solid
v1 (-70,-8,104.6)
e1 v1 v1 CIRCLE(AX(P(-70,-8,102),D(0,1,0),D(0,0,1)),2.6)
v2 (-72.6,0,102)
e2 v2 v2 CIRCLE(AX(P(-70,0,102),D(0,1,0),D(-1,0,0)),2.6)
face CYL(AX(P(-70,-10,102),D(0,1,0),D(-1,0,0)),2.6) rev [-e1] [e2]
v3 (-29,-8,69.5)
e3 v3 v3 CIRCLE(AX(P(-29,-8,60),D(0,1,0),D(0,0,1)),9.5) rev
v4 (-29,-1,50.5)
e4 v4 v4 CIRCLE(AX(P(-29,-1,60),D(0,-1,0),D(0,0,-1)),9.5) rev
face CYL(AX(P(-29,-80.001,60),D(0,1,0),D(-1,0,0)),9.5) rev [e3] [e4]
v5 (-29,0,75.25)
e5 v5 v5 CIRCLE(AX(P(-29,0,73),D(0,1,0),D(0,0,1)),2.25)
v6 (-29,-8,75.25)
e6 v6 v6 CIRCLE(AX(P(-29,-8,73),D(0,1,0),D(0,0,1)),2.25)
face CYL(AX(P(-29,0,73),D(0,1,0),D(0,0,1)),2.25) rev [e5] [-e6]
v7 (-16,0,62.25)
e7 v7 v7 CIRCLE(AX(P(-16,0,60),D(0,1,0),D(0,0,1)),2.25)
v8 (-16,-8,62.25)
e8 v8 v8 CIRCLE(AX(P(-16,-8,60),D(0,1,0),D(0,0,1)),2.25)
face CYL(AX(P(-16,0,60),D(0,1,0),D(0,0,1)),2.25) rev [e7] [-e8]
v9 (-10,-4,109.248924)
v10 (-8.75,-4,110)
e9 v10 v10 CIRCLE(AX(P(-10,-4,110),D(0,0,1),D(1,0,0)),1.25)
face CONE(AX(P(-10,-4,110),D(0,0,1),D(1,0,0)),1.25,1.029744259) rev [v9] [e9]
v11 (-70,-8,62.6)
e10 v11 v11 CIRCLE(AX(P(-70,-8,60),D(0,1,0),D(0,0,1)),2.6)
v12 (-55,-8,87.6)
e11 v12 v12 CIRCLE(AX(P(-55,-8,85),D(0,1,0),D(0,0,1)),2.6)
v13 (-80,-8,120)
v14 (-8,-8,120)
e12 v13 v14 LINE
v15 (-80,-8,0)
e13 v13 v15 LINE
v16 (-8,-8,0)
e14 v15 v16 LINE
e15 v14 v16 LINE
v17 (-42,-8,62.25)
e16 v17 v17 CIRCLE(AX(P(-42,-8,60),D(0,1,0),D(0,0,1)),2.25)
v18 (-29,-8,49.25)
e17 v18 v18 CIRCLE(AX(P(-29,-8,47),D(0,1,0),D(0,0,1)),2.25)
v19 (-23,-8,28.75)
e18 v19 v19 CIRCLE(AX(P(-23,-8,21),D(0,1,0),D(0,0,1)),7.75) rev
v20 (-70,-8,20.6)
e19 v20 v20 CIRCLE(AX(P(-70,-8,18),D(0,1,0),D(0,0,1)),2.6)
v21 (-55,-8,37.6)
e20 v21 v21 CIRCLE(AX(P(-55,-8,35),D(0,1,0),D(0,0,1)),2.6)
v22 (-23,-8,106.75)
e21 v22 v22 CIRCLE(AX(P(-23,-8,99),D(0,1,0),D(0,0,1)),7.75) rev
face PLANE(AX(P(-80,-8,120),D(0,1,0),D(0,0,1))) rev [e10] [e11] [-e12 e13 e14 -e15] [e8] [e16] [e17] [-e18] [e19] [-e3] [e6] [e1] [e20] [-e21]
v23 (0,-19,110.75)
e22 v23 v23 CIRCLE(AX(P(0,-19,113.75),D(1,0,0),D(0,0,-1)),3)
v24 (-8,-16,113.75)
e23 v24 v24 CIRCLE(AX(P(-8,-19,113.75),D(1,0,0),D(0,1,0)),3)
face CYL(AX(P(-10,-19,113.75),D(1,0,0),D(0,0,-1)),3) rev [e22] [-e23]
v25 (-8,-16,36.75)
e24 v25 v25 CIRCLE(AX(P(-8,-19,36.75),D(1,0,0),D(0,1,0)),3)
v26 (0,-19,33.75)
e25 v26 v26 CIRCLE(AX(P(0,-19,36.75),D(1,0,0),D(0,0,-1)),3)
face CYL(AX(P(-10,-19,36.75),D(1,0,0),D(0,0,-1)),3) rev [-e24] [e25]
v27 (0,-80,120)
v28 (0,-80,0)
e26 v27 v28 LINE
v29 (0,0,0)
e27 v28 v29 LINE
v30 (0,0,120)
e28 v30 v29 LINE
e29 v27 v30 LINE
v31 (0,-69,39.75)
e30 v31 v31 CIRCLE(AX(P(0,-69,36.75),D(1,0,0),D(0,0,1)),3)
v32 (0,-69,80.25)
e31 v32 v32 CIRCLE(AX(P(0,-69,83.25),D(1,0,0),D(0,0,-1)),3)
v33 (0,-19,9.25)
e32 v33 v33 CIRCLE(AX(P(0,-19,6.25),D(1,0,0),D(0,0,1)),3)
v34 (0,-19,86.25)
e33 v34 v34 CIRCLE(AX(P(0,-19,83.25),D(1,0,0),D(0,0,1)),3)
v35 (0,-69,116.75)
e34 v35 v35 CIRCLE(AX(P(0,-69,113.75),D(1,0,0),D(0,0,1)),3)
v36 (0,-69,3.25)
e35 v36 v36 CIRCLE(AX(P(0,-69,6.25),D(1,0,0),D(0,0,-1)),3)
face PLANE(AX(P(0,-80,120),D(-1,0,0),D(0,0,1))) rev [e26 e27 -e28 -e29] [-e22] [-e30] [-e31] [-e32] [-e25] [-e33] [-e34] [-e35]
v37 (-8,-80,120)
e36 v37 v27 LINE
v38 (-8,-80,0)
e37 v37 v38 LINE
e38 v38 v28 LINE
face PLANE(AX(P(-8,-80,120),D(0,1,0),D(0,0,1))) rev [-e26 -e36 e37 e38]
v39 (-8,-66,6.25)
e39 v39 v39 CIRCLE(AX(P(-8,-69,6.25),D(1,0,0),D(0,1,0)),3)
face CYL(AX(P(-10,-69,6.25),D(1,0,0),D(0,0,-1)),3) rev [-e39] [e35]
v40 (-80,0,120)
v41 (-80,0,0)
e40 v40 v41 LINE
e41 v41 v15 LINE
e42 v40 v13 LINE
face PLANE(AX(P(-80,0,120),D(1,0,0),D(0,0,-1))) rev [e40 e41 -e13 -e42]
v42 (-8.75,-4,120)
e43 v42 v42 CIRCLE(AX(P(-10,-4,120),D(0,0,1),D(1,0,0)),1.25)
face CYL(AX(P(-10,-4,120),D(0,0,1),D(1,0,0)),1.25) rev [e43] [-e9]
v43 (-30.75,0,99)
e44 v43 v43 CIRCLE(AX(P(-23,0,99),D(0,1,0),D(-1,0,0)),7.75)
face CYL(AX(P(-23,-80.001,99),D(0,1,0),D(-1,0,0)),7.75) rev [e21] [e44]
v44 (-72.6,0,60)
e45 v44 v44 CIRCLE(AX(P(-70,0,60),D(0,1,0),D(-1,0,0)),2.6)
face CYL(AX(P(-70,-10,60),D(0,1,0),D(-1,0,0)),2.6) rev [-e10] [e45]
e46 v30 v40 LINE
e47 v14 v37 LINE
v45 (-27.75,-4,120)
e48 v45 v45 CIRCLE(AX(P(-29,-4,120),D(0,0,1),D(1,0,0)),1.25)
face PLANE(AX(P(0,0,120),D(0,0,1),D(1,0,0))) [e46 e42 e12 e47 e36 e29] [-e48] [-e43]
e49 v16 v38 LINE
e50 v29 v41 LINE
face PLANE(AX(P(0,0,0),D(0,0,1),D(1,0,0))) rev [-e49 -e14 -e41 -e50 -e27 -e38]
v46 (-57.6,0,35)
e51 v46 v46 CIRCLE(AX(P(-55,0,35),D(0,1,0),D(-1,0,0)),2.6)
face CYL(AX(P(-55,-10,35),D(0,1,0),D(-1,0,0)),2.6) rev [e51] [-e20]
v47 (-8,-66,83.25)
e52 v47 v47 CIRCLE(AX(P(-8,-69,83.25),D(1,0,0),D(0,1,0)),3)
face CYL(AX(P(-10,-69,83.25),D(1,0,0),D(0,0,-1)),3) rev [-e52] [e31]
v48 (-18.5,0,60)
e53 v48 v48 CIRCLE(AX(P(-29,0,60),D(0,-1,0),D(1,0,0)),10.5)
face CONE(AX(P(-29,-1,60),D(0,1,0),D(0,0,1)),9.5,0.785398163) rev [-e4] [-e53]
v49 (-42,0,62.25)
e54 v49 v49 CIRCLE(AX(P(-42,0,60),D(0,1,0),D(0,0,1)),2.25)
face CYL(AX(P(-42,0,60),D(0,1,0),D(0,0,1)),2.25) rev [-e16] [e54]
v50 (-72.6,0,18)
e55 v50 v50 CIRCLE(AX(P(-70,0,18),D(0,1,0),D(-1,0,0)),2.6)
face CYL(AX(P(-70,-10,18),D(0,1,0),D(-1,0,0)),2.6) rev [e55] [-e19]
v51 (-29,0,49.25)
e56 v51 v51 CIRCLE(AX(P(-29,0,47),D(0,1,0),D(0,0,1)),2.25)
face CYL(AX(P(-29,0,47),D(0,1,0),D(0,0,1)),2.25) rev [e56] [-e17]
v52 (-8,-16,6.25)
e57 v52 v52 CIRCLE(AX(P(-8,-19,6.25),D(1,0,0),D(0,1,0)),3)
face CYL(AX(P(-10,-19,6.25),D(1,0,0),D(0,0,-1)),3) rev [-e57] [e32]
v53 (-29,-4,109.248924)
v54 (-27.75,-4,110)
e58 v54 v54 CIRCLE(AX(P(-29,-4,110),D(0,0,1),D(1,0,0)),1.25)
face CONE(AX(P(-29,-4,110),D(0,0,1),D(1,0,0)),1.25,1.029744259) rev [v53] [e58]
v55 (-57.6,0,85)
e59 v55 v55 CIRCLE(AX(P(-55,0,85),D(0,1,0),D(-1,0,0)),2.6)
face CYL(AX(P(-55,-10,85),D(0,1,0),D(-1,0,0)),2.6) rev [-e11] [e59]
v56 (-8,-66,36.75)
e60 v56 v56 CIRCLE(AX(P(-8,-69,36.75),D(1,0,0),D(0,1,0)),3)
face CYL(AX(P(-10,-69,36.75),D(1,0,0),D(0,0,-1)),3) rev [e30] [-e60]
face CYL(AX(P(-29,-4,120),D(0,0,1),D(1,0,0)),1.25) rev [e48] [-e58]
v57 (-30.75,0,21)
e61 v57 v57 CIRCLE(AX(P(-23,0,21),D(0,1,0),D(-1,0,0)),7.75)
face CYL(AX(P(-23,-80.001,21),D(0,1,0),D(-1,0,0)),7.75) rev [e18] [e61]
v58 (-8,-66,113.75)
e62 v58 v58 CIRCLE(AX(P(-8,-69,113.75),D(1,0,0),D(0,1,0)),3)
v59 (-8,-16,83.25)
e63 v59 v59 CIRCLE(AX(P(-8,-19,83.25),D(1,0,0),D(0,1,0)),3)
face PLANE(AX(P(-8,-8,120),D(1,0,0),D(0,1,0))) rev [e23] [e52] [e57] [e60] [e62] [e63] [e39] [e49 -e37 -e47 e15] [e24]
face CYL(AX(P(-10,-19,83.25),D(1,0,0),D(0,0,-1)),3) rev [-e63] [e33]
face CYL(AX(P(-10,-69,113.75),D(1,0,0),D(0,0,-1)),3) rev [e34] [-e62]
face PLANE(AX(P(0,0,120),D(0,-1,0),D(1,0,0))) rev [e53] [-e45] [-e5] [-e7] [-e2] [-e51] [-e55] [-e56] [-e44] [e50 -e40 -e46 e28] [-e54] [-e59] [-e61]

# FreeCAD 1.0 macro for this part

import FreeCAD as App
import Part
import Sketcher
from FreeCAD import Vector


def edges_at(feature, points):
    """Names of the edges that pass closest to the given points."""
    edges = feature.Shape.Edges
    near = lambda p: min(range(len(edges)), key=lambda i: edges[i].distToShape(Part.Vertex(*p))[0])
    return sorted({f"Edge{near(p) + 1}" for p in points})

doc = App.newDocument("Part")
body = doc.addObject("PartDesign::Body", "Body")

# Sketch on XY plane
sketch1 = doc.addObject("Sketcher::SketchObject", "Sketch")
body.addObject(sketch1)
sketch1.AttachmentSupport = (doc.XY_Plane, [""])
sketch1.MapMode = "FlatFace"
sketch1.addGeometry([
    Part.LineSegment(Vector(0, 0, 0), Vector(-80, 0, 0)),  # 0
    Part.LineSegment(Vector(-80, 0, 0), Vector(-80, -8, 0)),  # 1
    Part.LineSegment(Vector(-80, -8, 0), Vector(-8, -8, 0)),  # 2
    Part.LineSegment(Vector(-8, -8, 0), Vector(-8, -80, 0)),  # 3
    Part.LineSegment(Vector(-8, -80, 0), Vector(0, -80, 0)),  # 4
    Part.LineSegment(Vector(0, -80, 0), Vector(0, 0, 0)),  # 5
], False)
sketch1.addConstraint([
    Sketcher.Constraint("Coincident", 0, 2, 1, 1),
    Sketcher.Constraint("Coincident", 1, 2, 2, 1),
    Sketcher.Constraint("Coincident", 2, 2, 3, 1),
    Sketcher.Constraint("Coincident", 3, 2, 4, 1),
    Sketcher.Constraint("Coincident", 4, 2, 5, 1),
    Sketcher.Constraint("Coincident", 5, 2, 0, 1),
    Sketcher.Constraint("Horizontal", 0),
    Sketcher.Constraint("Vertical", 1),
    Sketcher.Constraint("Horizontal", 2),
    Sketcher.Constraint("Vertical", 3),
    Sketcher.Constraint("Horizontal", 4),
    Sketcher.Constraint("Vertical", 5),
    Sketcher.Constraint("Coincident", 5, 2, -1, 1),
    Sketcher.Constraint("Equal", 4, 1),
    Sketcher.Constraint("Equal", 2, 3),
    Sketcher.Constraint("DistanceX", 0, 2, 0, 1, 80.0),
    Sketcher.Constraint("DistanceX", 2, 1, 2, 2, 72.0),
])
pad1 = doc.addObject("PartDesign::Pad", "Pad")
body.addObject(pad1)
pad1.Profile = sketch1
pad1.Length = 120

# Sketch on XZ plane
sketch2 = doc.addObject("Sketcher::SketchObject", "Sketch001")
body.addObject(sketch2)
sketch2.AttachmentSupport = (doc.XZ_Plane, [""])
sketch2.MapMode = "FlatFace"
sketch2.addGeometry(Part.Circle(Vector(-23, 21, 0), Vector(0, 0, 1), 7.75), False)
sketch2.addConstraint([
    Sketcher.Constraint("Diameter", 0, 15.5),
    Sketcher.Constraint("DistanceX", 0, 3, -1, 1, 23.0),
    Sketcher.Constraint("DistanceY", -1, 1, 0, 3, 21.0),
])
pocket1 = doc.addObject("PartDesign::Pocket", "Pocket")
body.addObject(pocket1)
pocket1.Profile = sketch2
pocket1.Type = "UpToFirst"
pocket1.Reversed = True

# Sketch on XZ plane
sketch3 = doc.addObject("Sketcher::SketchObject", "Sketch002")
body.addObject(sketch3)
sketch3.AttachmentSupport = (doc.XZ_Plane, [""])
sketch3.MapMode = "FlatFace"
sketch3.addGeometry(Part.Circle(Vector(-23, 99, 0), Vector(0, 0, 1), 7.75), False)
sketch3.addConstraint([
    Sketcher.Constraint("Diameter", 0, 15.5),
    Sketcher.Constraint("DistanceX", 0, 3, -1, 1, 23.0),
    Sketcher.Constraint("DistanceY", -1, 1, 0, 3, 99.0),
])
pocket2 = doc.addObject("PartDesign::Pocket", "Pocket001")
body.addObject(pocket2)
pocket2.Profile = sketch3
pocket2.Type = "UpToFirst"
pocket2.Reversed = True

# Sketch on XZ plane
sketch4 = doc.addObject("Sketcher::SketchObject", "Sketch003")
body.addObject(sketch4)
sketch4.AttachmentSupport = (doc.XZ_Plane, [""])
sketch4.MapMode = "FlatFace"
sketch4.addGeometry(Part.Circle(Vector(-29, 60, 0), Vector(0, 0, 1), 9.5), False)
sketch4.addConstraint([
    Sketcher.Constraint("Diameter", 0, 19.0),
    Sketcher.Constraint("DistanceX", 0, 3, -1, 1, 29.0),
    Sketcher.Constraint("DistanceY", -1, 1, 0, 3, 60.0),
])
pocket3 = doc.addObject("PartDesign::Pocket", "Pocket002")
body.addObject(pocket3)
pocket3.Profile = sketch4
pocket3.Type = "UpToFirst"
pocket3.Reversed = True

# Sketch on XZ plane
sketch5 = doc.addObject("Sketcher::SketchObject", "Sketch004")
body.addObject(sketch5)
sketch5.AttachmentSupport = (doc.XZ_Plane, [""])
sketch5.MapMode = "FlatFace"
sketch5.addGeometry([
    Part.Circle(Vector(-29, 47, 0), Vector(0, 0, 1), 2.25),  # 0
    Part.Circle(Vector(-42, 60, 0), Vector(0, 0, 1), 2.25),  # 1
    Part.Circle(Vector(-29, 73, 0), Vector(0, 0, 1), 2.25),  # 2
    Part.Circle(Vector(-16, 60, 0), Vector(0, 0, 1), 2.25),  # 3
    Part.Circle(Vector(-29, 60, 0), Vector(0, 0, 1), 2.25),  # 4
], False)
sketch5.addConstraint([
    Sketcher.Constraint("Equal", 0, 1),
    Sketcher.Constraint("Equal", 1, 2),
    Sketcher.Constraint("Equal", 2, 3),
    Sketcher.Constraint("Equal", 3, 4),
    Sketcher.Constraint("Horizontal", 1, 3, 3, 3),
    Sketcher.Constraint("Horizontal", 3, 3, 4, 3),
    Sketcher.Constraint("Vertical", 0, 3, 2, 3),
    Sketcher.Constraint("Vertical", 2, 3, 4, 3),
    Sketcher.Constraint("Diameter", 0, 4.5),
    Sketcher.Constraint("DistanceX", 0, 3, -1, 1, 29.0),
    Sketcher.Constraint("DistanceY", -1, 1, 0, 3, 47.0),
    Sketcher.Constraint("DistanceX", 1, 3, -1, 1, 42.0),
    Sketcher.Constraint("DistanceY", -1, 1, 1, 3, 60.0),
    Sketcher.Constraint("DistanceY", -1, 1, 2, 3, 73.0),
    Sketcher.Constraint("DistanceX", 3, 3, -1, 1, 16.0),
])
doc.recompute()
hole = doc.addObject("PartDesign::Hole", "Hole")
body.addObject(hole)
hole.Profile = sketch5
hole.ThreadType = "None"
hole.Diameter = 4.5
hole.DepthType = "ThroughAll"
hole.Reversed = True

# Sketch on YZ plane
sketch6 = doc.addObject("Sketcher::SketchObject", "Sketch005")
body.addObject(sketch6)
sketch6.AttachmentSupport = (doc.YZ_Plane, [""])
sketch6.MapMode = "FlatFace"
sketch6.addGeometry([
    Part.Circle(Vector(-19, 113.75, 0), Vector(0, 0, 1), 3),  # 0
    Part.Circle(Vector(-19, 83.25, 0), Vector(0, 0, 1), 3),  # 1
    Part.Circle(Vector(-19, 36.75, 0), Vector(0, 0, 1), 3),  # 2
    Part.Circle(Vector(-19, 6.25, 0), Vector(0, 0, 1), 3),  # 3
    Part.Circle(Vector(-69, 83.25, 0), Vector(0, 0, 1), 3),  # 4
    Part.Circle(Vector(-69, 113.75, 0), Vector(0, 0, 1), 3),  # 5
    Part.Circle(Vector(-69, 6.25, 0), Vector(0, 0, 1), 3),  # 6
    Part.Circle(Vector(-69, 36.75, 0), Vector(0, 0, 1), 3),  # 7
], False)
sketch6.addConstraint([
    Sketcher.Constraint("Equal", 0, 1),
    Sketcher.Constraint("Equal", 1, 2),
    Sketcher.Constraint("Equal", 2, 3),
    Sketcher.Constraint("Equal", 3, 4),
    Sketcher.Constraint("Equal", 4, 5),
    Sketcher.Constraint("Equal", 5, 6),
    Sketcher.Constraint("Equal", 6, 7),
    Sketcher.Constraint("Horizontal", 1, 3, 4, 3),
    Sketcher.Constraint("Horizontal", 0, 3, 5, 3),
    Sketcher.Constraint("Horizontal", 3, 3, 6, 3),
    Sketcher.Constraint("Horizontal", 2, 3, 7, 3),
    Sketcher.Constraint("Vertical", 0, 3, 1, 3),
    Sketcher.Constraint("Vertical", 1, 3, 2, 3),
    Sketcher.Constraint("Vertical", 2, 3, 3, 3),
    Sketcher.Constraint("Vertical", 4, 3, 5, 3),
    Sketcher.Constraint("Vertical", 5, 3, 6, 3),
    Sketcher.Constraint("Vertical", 6, 3, 7, 3),
    Sketcher.Constraint("Diameter", 0, 6.0),
    Sketcher.Constraint("DistanceX", 0, 3, -1, 1, 19.0),
    Sketcher.Constraint("DistanceX", 4, 3, -1, 1, 69.0),
    Sketcher.Constraint("DistanceY", 2, 3, 0, 3, 77.0),
    Sketcher.Constraint("DistanceY", 3, 3, 1, 3, 77.0),
    Sketcher.Constraint("DistanceY", 1, 3, 0, 3, 30.5),
    Sketcher.Constraint("DistanceY", -1, 1, 0, 3, 113.75),
])
pocket4 = doc.addObject("PartDesign::Pocket", "Pocket003")
body.addObject(pocket4)
pocket4.Profile = sketch6
pocket4.Length = 10

# Sketch on XZ plane
sketch7 = doc.addObject("Sketcher::SketchObject", "Sketch006")
body.addObject(sketch7)
sketch7.AttachmentSupport = (doc.XZ_Plane, [""])
sketch7.MapMode = "FlatFace"
sketch7.addGeometry([
    Part.Circle(Vector(-70, 18, 0), Vector(0, 0, 1), 2.6),  # 0
    Part.Circle(Vector(-70, 60, 0), Vector(0, 0, 1), 2.6),  # 1
    Part.Circle(Vector(-70, 102, 0), Vector(0, 0, 1), 2.6),  # 2
    Part.Circle(Vector(-55, 35, 0), Vector(0, 0, 1), 2.6),  # 3
    Part.Circle(Vector(-55, 85, 0), Vector(0, 0, 1), 2.6),  # 4
], False)
sketch7.addConstraint([
    Sketcher.Constraint("Equal", 0, 1),
    Sketcher.Constraint("Equal", 1, 2),
    Sketcher.Constraint("Equal", 2, 3),
    Sketcher.Constraint("Equal", 3, 4),
    Sketcher.Constraint("Vertical", 0, 3, 1, 3),
    Sketcher.Constraint("Vertical", 1, 3, 2, 3),
    Sketcher.Constraint("Vertical", 3, 3, 4, 3),
    Sketcher.Constraint("Diameter", 0, 5.2),
    Sketcher.Constraint("DistanceX", 0, 3, -1, 1, 70.0),
    Sketcher.Constraint("DistanceY", -1, 1, 0, 3, 18.0),
    Sketcher.Constraint("DistanceY", -1, 1, 1, 3, 60.0),
    Sketcher.Constraint("DistanceY", -1, 1, 2, 3, 102.0),
    Sketcher.Constraint("DistanceX", 3, 3, -1, 1, 55.0),
    Sketcher.Constraint("DistanceY", -1, 1, 3, 3, 35.0),
    Sketcher.Constraint("DistanceY", -1, 1, 4, 3, 85.0),
])
pocket5 = doc.addObject("PartDesign::Pocket", "Pocket004")
body.addObject(pocket5)
pocket5.Profile = sketch7
pocket5.Length = 10
pocket5.Reversed = True
doc.recompute()

chamfer = doc.addObject("PartDesign::Chamfer", "Chamfer")
body.addObject(chamfer)
chamfer.Base = (pocket5, edges_at(pocket5, [(-19.5, 0, 60)]))
chamfer.Size = 1

# Sketch on XY plane
sketch8 = doc.addObject("Sketcher::SketchObject", "Sketch007")
body.addObject(sketch8)
sketch8.AttachmentSupport = (doc.XY_Plane, [""])
sketch8.MapMode = "FlatFace"
sketch8.AttachmentOffset = App.Placement(Vector(0, 0, 120), App.Rotation())
sketch8.addGeometry([
    Part.Circle(Vector(-10, -4, 0), Vector(0, 0, 1), 1.25),
    Part.Circle(Vector(-29, -4, 0), Vector(0, 0, 1), 1.25),
], False)
sketch8.addConstraint([
    Sketcher.Constraint("Equal", 0, 1),
    Sketcher.Constraint("Horizontal", 0, 3, 1, 3),
    Sketcher.Constraint("Diameter", 0, 2.5),
    Sketcher.Constraint("DistanceX", 0, 3, -1, 1, 10.0),
    Sketcher.Constraint("DistanceY", 0, 3, -1, 1, 4.0),
    Sketcher.Constraint("DistanceX", 1, 3, -1, 1, 29.0),
])
doc.recompute()
hole2 = doc.addObject("PartDesign::Hole", "Hole001")
body.addObject(hole2)
hole2.Profile = sketch8
hole2.ThreadType = "None"
hole2.Diameter = 2.5
hole2.DepthType = "Dimension"
hole2.Depth = 10
hole2.DrillPoint = "Angled"
hole2.DrillPointAngle = 118

doc.recompute()
